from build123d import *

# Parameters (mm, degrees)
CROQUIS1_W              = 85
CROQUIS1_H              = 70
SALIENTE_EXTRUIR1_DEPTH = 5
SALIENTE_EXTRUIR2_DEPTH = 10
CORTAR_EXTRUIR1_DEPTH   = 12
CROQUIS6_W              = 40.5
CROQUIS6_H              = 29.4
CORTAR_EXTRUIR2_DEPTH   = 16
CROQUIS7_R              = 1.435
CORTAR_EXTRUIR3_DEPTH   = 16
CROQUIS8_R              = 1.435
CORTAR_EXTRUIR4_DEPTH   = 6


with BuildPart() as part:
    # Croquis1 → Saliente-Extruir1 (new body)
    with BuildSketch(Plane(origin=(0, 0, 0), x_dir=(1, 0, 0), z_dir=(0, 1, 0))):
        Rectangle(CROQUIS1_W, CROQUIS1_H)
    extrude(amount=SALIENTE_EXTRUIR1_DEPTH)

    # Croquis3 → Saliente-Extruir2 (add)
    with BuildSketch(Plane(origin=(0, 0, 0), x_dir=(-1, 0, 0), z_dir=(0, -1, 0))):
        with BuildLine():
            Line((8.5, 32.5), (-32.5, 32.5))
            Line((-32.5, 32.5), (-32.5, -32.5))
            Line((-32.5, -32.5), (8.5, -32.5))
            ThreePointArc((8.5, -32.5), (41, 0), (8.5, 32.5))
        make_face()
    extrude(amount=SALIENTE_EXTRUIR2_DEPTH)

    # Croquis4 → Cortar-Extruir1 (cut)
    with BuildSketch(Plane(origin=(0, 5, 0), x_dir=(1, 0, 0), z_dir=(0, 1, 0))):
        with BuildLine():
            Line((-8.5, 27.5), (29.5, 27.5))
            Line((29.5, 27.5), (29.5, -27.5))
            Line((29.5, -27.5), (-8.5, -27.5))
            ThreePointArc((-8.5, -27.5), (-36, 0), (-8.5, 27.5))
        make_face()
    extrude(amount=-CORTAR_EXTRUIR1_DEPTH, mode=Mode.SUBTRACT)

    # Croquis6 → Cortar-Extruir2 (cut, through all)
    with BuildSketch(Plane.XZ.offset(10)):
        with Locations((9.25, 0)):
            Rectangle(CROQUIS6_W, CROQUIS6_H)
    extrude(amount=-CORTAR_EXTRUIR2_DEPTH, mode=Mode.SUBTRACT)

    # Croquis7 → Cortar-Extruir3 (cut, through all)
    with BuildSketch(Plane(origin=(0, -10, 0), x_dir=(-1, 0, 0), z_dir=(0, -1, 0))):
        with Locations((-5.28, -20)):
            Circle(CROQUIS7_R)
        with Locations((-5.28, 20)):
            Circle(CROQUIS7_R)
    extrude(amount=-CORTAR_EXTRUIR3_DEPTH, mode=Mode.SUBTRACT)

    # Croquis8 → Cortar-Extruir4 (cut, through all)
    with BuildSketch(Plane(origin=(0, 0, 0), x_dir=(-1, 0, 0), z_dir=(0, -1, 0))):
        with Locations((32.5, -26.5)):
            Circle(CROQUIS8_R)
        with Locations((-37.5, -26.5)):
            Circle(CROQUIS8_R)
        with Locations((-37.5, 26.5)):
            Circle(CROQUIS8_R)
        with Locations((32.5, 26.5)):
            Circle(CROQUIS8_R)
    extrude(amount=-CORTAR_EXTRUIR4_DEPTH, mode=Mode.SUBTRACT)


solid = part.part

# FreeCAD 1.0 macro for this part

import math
import FreeCAD as App
import Part
import Sketcher
from FreeCAD import Vector

doc = App.newDocument("Part")
body = doc.addObject("PartDesign::Body", "Body")

sketch1 = body.newObject("Sketcher::SketchObject", "Sketch")
sketch1.AttachmentSupport = (doc.getObject("XZ_Plane"), [""])
sketch1.MapMode = "FlatFace"
sketch1.addGeometry(Part.LineSegment(Vector(-42, -35, 0), Vector(-42, 35, 0)), False)
sketch1.addGeometry(Part.LineSegment(Vector(-42, 35, 0), Vector(42, 35, 0)), False)
sketch1.addGeometry(Part.LineSegment(Vector(42, 35, 0), Vector(42, -35, 0)), False)
sketch1.addGeometry(Part.LineSegment(Vector(42, -35, 0), Vector(-42, -35, 0)), False)
sketch1.addConstraint(Sketcher.Constraint("Coincident", 0, 2, 1, 1))
sketch1.addConstraint(Sketcher.Constraint("Coincident", 1, 2, 2, 1))
sketch1.addConstraint(Sketcher.Constraint("Coincident", 2, 2, 3, 1))
sketch1.addConstraint(Sketcher.Constraint("Coincident", 3, 2, 0, 1))
sketch1.addConstraint(Sketcher.Constraint("Vertical", 0))
sketch1.addConstraint(Sketcher.Constraint("Horizontal", 1))
sketch1.addConstraint(Sketcher.Constraint("Vertical", 2))
sketch1.addConstraint(Sketcher.Constraint("Horizontal", 3))
sketch1.addConstraint(Sketcher.Constraint("Symmetric", 0, 2, 2, 2, -1, 1))
sketch1.addConstraint(Sketcher.Constraint("DistanceX", 1, 1, 1, 2, 85.0))
sketch1.addConstraint(Sketcher.Constraint("DistanceY", 0, 1, 0, 2, 70.0))
pad1 = body.newObject("PartDesign::Pad", "Pad")
pad1.Profile = sketch1
pad1.Length = 5
pad1.Reversed = True

sketch2 = body.newObject("Sketcher::SketchObject", "Sketch001")
sketch2.AttachmentSupport = (doc.getObject("XZ_Plane"), [""])
sketch2.MapMode = "FlatFace"
sketch2.addGeometry(Part.LineSegment(Vector(-8, -32, 0), Vector(32, -32, 0)), False)
sketch2.addGeometry(Part.LineSegment(Vector(32, -32, 0), Vector(32, 32, 0)), False)
sketch2.addGeometry(Part.LineSegment(Vector(32, 32, 0), Vector(-8, 32, 0)), False)
sketch2.addGeometry(Part.ArcOfCircle(Part.Circle(Vector(-8, 0, 0), Vector(0, 0, 1), 32), math.radians(90), math.radians(270)), False)
sketch2.addConstraint(Sketcher.Constraint("Coincident", 0, 2, 1, 1))
sketch2.addConstraint(Sketcher.Constraint("Coincident", 1, 2, 2, 1))
sketch2.addConstraint(Sketcher.Constraint("Tangent", 2, 2, 3, 1))
sketch2.addConstraint(Sketcher.Constraint("Tangent", 3, 2, 0, 1))
sketch2.addConstraint(Sketcher.Constraint("Horizontal", 0))
sketch2.addConstraint(Sketcher.Constraint("Vertical", 1))
sketch2.addConstraint(Sketcher.Constraint("Horizontal", 2))
sketch2.addConstraint(Sketcher.Constraint("PointOnObject", 3, 3, -1))
sketch2.addConstraint(Sketcher.Constraint("Radius", 3, 32.5))
sketch2.addConstraint(Sketcher.Constraint("DistanceX", 0, 1, 0, 2, 41.0))
sketch2.addConstraint(Sketcher.Constraint("DistanceX", 3, 3, -1, 1, 8.5))
pad2 = body.newObject("PartDesign::Pad", "Pad001")
pad2.Profile = sketch2
pad2.Length = 10

sketch3 = body.newObject("Sketcher::SketchObject", "Sketch002")
sketch3.AttachmentSupport = (doc.getObject("XZ_Plane"), [""])
sketch3.MapMode = "FlatFace"
sketch3.AttachmentOffset = App.Placement(Vector(0, 0, -5), App.Rotation())
sketch3.addGeometry(Part.LineSegment(Vector(30, -28, 0), Vector(-8, -28, 0)), False)
sketch3.addGeometry(Part.ArcOfCircle(Part.Circle(Vector(-8, 0, 0), Vector(0, 0, 1), 28), math.radians(90), math.radians(270)), False)
sketch3.addGeometry(Part.LineSegment(Vector(-8, 28, 0), Vector(30, 28, 0)), False)
sketch3.addGeometry(Part.LineSegment(Vector(30, 28, 0), Vector(30, -28, 0)), False)
sketch3.addConstraint(Sketcher.Constraint("Tangent", 0, 2, 1, 2))
sketch3.addConstraint(Sketcher.Constraint("Tangent", 1, 1, 2, 1))
sketch3.addConstraint(Sketcher.Constraint("Coincident", 2, 2, 3, 1))
sketch3.addConstraint(Sketcher.Constraint("Coincident", 3, 2, 0, 1))
sketch3.addConstraint(Sketcher.Constraint("Horizontal", 0))
sketch3.addConstraint(Sketcher.Constraint("Horizontal", 2))
sketch3.addConstraint(Sketcher.Constraint("Vertical", 3))
sketch3.addConstraint(Sketcher.Constraint("PointOnObject", 1, 3, -1))
sketch3.addConstraint(Sketcher.Constraint("Radius", 1, 27.5))
sketch3.addConstraint(Sketcher.Constraint("DistanceX", 0, 2, 0, 1, 38.0))
sketch3.addConstraint(Sketcher.Constraint("DistanceX", 1, 3, -1, 1, 8.5))
pocket1 = body.newObject("PartDesign::Pocket", "Pocket")
pocket1.Profile = sketch3
pocket1.Length = 12
pocket1.Reversed = True

sketch4 = body.newObject("Sketcher::SketchObject", "Sketch003")
sketch4.AttachmentSupport = (doc.getObject("XZ_Plane"), [""])
sketch4.MapMode = "FlatFace"
sketch4.AttachmentOffset = App.Placement(Vector(0, 0, 10), App.Rotation())
sketch4.addGeometry(Part.LineSegment(Vector(-11, 15, 0), Vector(-11, -15, 0)), False)
sketch4.addGeometry(Part.LineSegment(Vector(-11, -15, 0), Vector(30, -15, 0)), False)
sketch4.addGeometry(Part.LineSegment(Vector(30, -15, 0), Vector(30, 15, 0)), False)
sketch4.addGeometry(Part.LineSegment(Vector(30, 15, 0), Vector(-11, 15, 0)), False)
sketch4.addConstraint(Sketcher.Constraint("Coincident", 0, 2, 1, 1))
sketch4.addConstraint(Sketcher.Constraint("Coincident", 1, 2, 2, 1))
sketch4.addConstraint(Sketcher.Constraint("Coincident", 2, 2, 3, 1))
sketch4.addConstraint(Sketcher.Constraint("Coincident", 3, 2, 0, 1))
sketch4.addConstraint(Sketcher.Constraint("Vertical", 0))
sketch4.addConstraint(Sketcher.Constraint("Horizontal", 1))
sketch4.addConstraint(Sketcher.Constraint("Vertical", 2))
sketch4.addConstraint(Sketcher.Constraint("Horizontal", 3))
sketch4.addConstraint(Sketcher.Constraint("DistanceX", 1, 1, 1, 2, 40.5))
sketch4.addConstraint(Sketcher.Constraint("DistanceY", 0, 2, 0, 1, 29.4))
sketch4.addConstraint(Sketcher.Constraint("DistanceX", 0, 2, -1, 1, 11.0))
sketch4.addConstraint(Sketcher.Constraint("DistanceY", 0, 2, -1, 1, 14.7))
pocket2 = body.newObject("PartDesign::Pocket", "Pocket001")
pocket2.Profile = sketch4
pocket2.Type = "ThroughAll"

sketch5 = body.newObject("Sketcher::SketchObject", "Sketch004")
sketch5.AttachmentSupport = (doc.getObject("XZ_Plane"), [""])
sketch5.MapMode = "FlatFace"
sketch5.AttachmentOffset = App.Placement(Vector(0, 0, 10), App.Rotation())
sketch5.addGeometry(Part.Circle(Vector(5.3, 20, 0), Vector(0, 0, 1), 1.4), False)
sketch5.addGeometry(Part.Circle(Vector(5.3, -20, 0), Vector(0, 0, 1), 1.4), False)
sketch5.addConstraint(Sketcher.Constraint("Equal", 0, 1))
sketch5.addConstraint(Sketcher.Constraint("Symmetric", 0, 3, 1, 3, -1))
sketch5.addConstraint(Sketcher.Constraint("Diameter", 0, 2.87))
sketch5.addConstraint(Sketcher.Constraint("DistanceY", -1, 1, 0, 3, 20.0))
sketch5.addConstraint(Sketcher.Constraint("DistanceX", -1, 1, 0, 3, 5.28))
pocket3 = body.newObject("PartDesign::Pocket", "Pocket002")
pocket3.Profile = sketch5
pocket3.Type = "ThroughAll"

sketch6 = body.newObject("Sketcher::SketchObject", "Sketch005")
sketch6.AttachmentSupport = (doc.getObject("XZ_Plane"), [""])
sketch6.MapMode = "FlatFace"
sketch6.addGeometry(Part.Circle(Vector(-32.5, 26.5, 0), Vector(0, 0, 1), 1.4), False)
sketch6.addGeometry(Part.Circle(Vector(37.5, 26.5, 0), Vector(0, 0, 1), 1.4), False)
sketch6.addGeometry(Part.Circle(Vector(37.5, -26.5, 0), Vector(0, 0, 1), 1.4), False)
sketch6.addGeometry(Part.Circle(Vector(-32.5, -26.5, 0), Vector(0, 0, 1), 1.4), False)
sketch6.addConstraint(Sketcher.Constraint("Equal", 0, 1))
sketch6.addConstraint(Sketcher.Constraint("Equal", 1, 2))
sketch6.addConstraint(Sketcher.Constraint("Equal", 2, 3))
sketch6.addConstraint(Sketcher.Constraint("Symmetric", 1, 3, 2, 3, -1))
sketch6.addConstraint(Sketcher.Constraint("Symmetric", 0, 3, 3, 3, -1))
sketch6.addConstraint(Sketcher.Constraint("Horizontal", 0, 3, 1, 3))
sketch6.addConstraint(Sketcher.Constraint("Diameter", 0, 2.87))
sketch6.addConstraint(Sketcher.Constraint("DistanceX", 0, 3, 1, 3, 70.0))
sketch6.addConstraint(Sketcher.Constraint("DistanceY", 2, 3, 1, 3, 53.0))
sketch6.addConstraint(Sketcher.Constraint("DistanceX", 0, 3, -1, 1, 32.5))
pocket4 = body.newObject("PartDesign::Pocket", "Pocket003")
pocket4.Profile = sketch6
pocket4.Type = "ThroughAll"

doc.recompute()
